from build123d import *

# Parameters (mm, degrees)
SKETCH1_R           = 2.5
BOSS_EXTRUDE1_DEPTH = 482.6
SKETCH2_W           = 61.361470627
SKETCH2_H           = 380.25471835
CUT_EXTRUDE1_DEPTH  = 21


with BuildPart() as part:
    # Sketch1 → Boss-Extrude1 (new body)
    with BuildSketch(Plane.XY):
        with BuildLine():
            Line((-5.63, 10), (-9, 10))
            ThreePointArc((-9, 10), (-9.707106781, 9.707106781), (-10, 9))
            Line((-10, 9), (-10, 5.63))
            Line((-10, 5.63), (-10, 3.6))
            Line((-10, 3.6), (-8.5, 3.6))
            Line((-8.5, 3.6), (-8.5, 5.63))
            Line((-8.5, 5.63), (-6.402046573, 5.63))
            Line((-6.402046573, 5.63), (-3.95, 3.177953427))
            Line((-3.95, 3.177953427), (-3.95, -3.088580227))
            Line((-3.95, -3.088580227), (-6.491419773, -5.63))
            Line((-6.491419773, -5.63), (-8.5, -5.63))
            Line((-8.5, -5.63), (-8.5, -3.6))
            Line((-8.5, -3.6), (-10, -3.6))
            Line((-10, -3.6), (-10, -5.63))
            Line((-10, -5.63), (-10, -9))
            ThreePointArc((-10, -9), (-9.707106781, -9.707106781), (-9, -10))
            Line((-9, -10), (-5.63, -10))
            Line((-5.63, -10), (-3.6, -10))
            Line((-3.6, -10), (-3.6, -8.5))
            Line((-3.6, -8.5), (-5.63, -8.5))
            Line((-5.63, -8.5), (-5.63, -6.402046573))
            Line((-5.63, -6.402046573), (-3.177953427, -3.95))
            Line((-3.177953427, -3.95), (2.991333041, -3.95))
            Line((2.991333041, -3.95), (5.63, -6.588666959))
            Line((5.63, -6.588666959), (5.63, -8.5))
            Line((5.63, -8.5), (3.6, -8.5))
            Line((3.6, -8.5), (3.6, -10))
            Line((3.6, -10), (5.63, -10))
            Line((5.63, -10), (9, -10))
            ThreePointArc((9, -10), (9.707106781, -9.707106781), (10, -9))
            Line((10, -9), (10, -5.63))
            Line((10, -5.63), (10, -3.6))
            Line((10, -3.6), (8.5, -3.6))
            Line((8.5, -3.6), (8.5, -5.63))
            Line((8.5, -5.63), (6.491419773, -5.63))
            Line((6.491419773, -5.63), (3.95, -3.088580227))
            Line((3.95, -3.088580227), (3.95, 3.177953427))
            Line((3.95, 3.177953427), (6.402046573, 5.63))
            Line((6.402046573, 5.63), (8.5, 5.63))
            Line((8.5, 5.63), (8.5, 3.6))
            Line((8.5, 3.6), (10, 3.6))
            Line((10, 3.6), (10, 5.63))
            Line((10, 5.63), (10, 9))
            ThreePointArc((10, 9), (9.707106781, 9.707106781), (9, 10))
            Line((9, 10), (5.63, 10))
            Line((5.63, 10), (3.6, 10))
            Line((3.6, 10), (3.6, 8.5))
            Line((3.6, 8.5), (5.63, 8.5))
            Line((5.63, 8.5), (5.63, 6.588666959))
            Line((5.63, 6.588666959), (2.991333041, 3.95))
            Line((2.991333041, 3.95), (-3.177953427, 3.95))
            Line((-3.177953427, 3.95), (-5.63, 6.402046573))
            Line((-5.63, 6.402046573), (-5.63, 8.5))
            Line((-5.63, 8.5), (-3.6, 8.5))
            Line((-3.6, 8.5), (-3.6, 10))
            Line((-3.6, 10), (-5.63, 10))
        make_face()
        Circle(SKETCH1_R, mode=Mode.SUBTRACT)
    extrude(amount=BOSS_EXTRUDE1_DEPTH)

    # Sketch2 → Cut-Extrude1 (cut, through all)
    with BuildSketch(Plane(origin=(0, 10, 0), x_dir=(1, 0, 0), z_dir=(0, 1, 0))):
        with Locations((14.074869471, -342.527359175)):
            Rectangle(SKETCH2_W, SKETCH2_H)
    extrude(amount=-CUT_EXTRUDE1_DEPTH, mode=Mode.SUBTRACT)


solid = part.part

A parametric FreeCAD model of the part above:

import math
import FreeCAD as App
import Part
import Sketcher
Q = App.Units.Quantity


def add_polygon(sketch, points):
    """Adds a closed chain of lines whose ends are joined by coincident constraints."""
    first, n = sketch.GeometryCount, len(points)
    for a, b in zip(points, points[1:] + points[:1]):
        sketch.addGeometry(Part.LineSegment(App.Vector(*a, 0), App.Vector(*b, 0)), False)
    for i in range(n):
        sketch.addConstraint(Sketcher.Constraint("Coincident", first + i, 2, first + (i + 1) % n, 1))

doc = App.newDocument("Part")
body = doc.addObject("PartDesign::Body", "Body")

sketch1 = doc.addObject("Sketcher::SketchObject", "Sketch")
body.addObject(sketch1)
sketch1.AttachmentSupport = (doc.XY_Plane, [""])
sketch1.MapMode = "FlatFace"
sketch1.addGeometry([
    Part.ArcOfCircle(Part.Circle(App.Vector(-9, 9, 0), App.Vector(0, 0, 1), 1), math.radians(90), math.radians(180)),
    Part.LineSegment(App.Vector(-10, 9, 0), App.Vector(-10, 3.6, 0)),
    Part.LineSegment(App.Vector(-10, 3.6, 0), App.Vector(-8.5, 3.6, 0)),
    Part.LineSegment(App.Vector(-8.5, 3.6, 0), App.Vector(-8.5, 5.6, 0)),
    Part.LineSegment(App.Vector(-8.5, 5.6, 0), App.Vector(-6.4, 5.6, 0)),
    Part.LineSegment(App.Vector(-6.4, 5.6, 0), App.Vector(-4, 3.2, 0)),
    Part.LineSegment(App.Vector(-4, 3.2, 0), App.Vector(-4, -3.1, 0)),
    Part.LineSegment(App.Vector(-4, -3.1, 0), App.Vector(-6.5, -5.6, 0)),
    Part.LineSegment(App.Vector(-6.5, -5.6, 0), App.Vector(-8.5, -5.6, 0)),
    Part.LineSegment(App.Vector(-8.5, -5.6, 0), App.Vector(-8.5, -3.6, 0)),
    Part.LineSegment(App.Vector(-8.5, -3.6, 0), App.Vector(-10, -3.6, 0)),
    Part.LineSegment(App.Vector(-10, -3.6, 0), App.Vector(-10, -9, 0)),
    Part.ArcOfCircle(Part.Circle(App.Vector(-9, -9, 0), App.Vector(0, 0, 1), 1), math.radians(-180), math.radians(-90)),
    Part.LineSegment(App.Vector(-9, -10, 0), App.Vector(-3.6, -10, 0)),
    Part.LineSegment(App.Vector(-3.6, -10, 0), App.Vector(-3.6, -8.5, 0)),
    Part.LineSegment(App.Vector(-3.6, -8.5, 0), App.Vector(-5.6, -8.5, 0)),
    Part.LineSegment(App.Vector(-5.6, -8.5, 0), App.Vector(-5.6, -6.4, 0)),
    Part.LineSegment(App.Vector(-5.6, -6.4, 0), App.Vector(-3.2, -4, 0)),
    Part.LineSegment(App.Vector(-3.2, -4, 0), App.Vector(3, -4, 0)),
    Part.LineSegment(App.Vector(3, -4, 0), App.Vector(5.6, -6.6, 0)),
    Part.LineSegment(App.Vector(5.6, -6.6, 0), App.Vector(5.6, -8.5, 0)),
    Part.LineSegment(App.Vector(5.6, -8.5, 0), App.Vector(3.6, -8.5, 0)),
    Part.LineSegment(App.Vector(3.6, -8.5, 0), App.Vector(3.6, -10, 0)),
    Part.LineSegment(App.Vector(3.6, -10, 0), App.Vector(9, -10, 0)),
    Part.ArcOfCircle(Part.Circle(App.Vector(9, -9, 0), App.Vector(0, 0, 1), 1), math.radians(-90), math.radians(0)),
    Part.LineSegment(App.Vector(10, -9, 0), App.Vector(10, -3.6, 0)),
    Part.LineSegment(App.Vector(10, -3.6, 0), App.Vector(8.5, -3.6, 0)),
    Part.LineSegment(App.Vector(8.5, -3.6, 0), App.Vector(8.5, -5.6, 0)),
    Part.LineSegment(App.Vector(8.5, -5.6, 0), App.Vector(6.5, -5.6, 0)),
    Part.LineSegment(App.Vector(6.5, -5.6, 0), App.Vector(4, -3.1, 0)),
    Part.LineSegment(App.Vector(4, -3.1, 0), App.Vector(4, 3.2, 0)),
    Part.LineSegment(App.Vector(4, 3.2, 0), App.Vector(6.4, 5.6, 0)),
    Part.LineSegment(App.Vector(6.4, 5.6, 0), App.Vector(8.5, 5.6, 0)),
    Part.LineSegment(App.Vector(8.5, 5.6, 0), App.Vector(8.5, 3.6, 0)),
    Part.LineSegment(App.Vector(8.5, 3.6, 0), App.Vector(10, 3.6, 0)),
    Part.LineSegment(App.Vector(10, 3.6, 0), App.Vector(10, 9, 0)),
    Part.ArcOfCircle(Part.Circle(App.Vector(9, 9, 0), App.Vector(0, 0, 1), 1), math.radians(0), math.radians(90)),
    Part.LineSegment(App.Vector(9, 10, 0), App.Vector(3.6, 10, 0)),
    Part.LineSegment(App.Vector(3.6, 10, 0), App.Vector(3.6, 8.5, 0)),
    Part.LineSegment(App.Vector(3.6, 8.5, 0), App.Vector(5.6, 8.5, 0)),
    Part.LineSegment(App.Vector(5.6, 8.5, 0), App.Vector(5.6, 6.6, 0)),
    Part.LineSegment(App.Vector(5.6, 6.6, 0), App.Vector(3, 4, 0)),
    Part.LineSegment(App.Vector(3, 4, 0), App.Vector(-3.2, 4, 0)),
    Part.LineSegment(App.Vector(-3.2, 4, 0), App.Vector(-5.6, 6.4, 0)),
    Part.LineSegment(App.Vector(-5.6, 6.4, 0), App.Vector(-5.6, 8.5, 0)),
    Part.LineSegment(App.Vector(-5.6, 8.5, 0), App.Vector(-3.6, 8.5, 0)),
    Part.LineSegment(App.Vector(-3.6, 8.5, 0), App.Vector(-3.6, 10, 0)),
    Part.LineSegment(App.Vector(-3.6, 10, 0), App.Vector(-9, 10, 0)),
    Part.Circle(App.Vector(0, 0, 0), App.Vector(0, 0, 1), 2.5),
], False)
sketch1.addConstraint([
    Sketcher.Constraint("Tangent", 0, 2, 1, 1),
    Sketcher.Constraint("Coincident", 1, 2, 2, 1),
    Sketcher.Constraint("Coincident", 2, 2, 3, 1),
    Sketcher.Constraint("Coincident", 3, 2, 4, 1),
    Sketcher.Constraint("Coincident", 4, 2, 5, 1),
    Sketcher.Constraint("Coincident", 5, 2, 6, 1),
    Sketcher.Constraint("Coincident", 6, 2, 7, 1),
    Sketcher.Constraint("Coincident", 7, 2, 8, 1),
    Sketcher.Constraint("Coincident", 8, 2, 9, 1),
    Sketcher.Constraint("Coincident", 9, 2, 10, 1),
    Sketcher.Constraint("Coincident", 10, 2, 11, 1),
    Sketcher.Constraint("Tangent", 11, 2, 12, 1),
    Sketcher.Constraint("Tangent", 12, 2, 13, 1),
    Sketcher.Constraint("Coincident", 13, 2, 14, 1),
    Sketcher.Constraint("Coincident", 14, 2, 15, 1),
    Sketcher.Constraint("Coincident", 15, 2, 16, 1),
    Sketcher.Constraint("Coincident", 16, 2, 17, 1),
    Sketcher.Constraint("Coincident", 17, 2, 18, 1),
    Sketcher.Constraint("Coincident", 18, 2, 19, 1),
    Sketcher.Constraint("Coincident", 19, 2, 20, 1),
    Sketcher.Constraint("Coincident", 20, 2, 21, 1),
    Sketcher.Constraint("Coincident", 21, 2, 22, 1),
    Sketcher.Constraint("Coincident", 22, 2, 23, 1),
    Sketcher.Constraint("Tangent", 23, 2, 24, 1),
    Sketcher.Constraint("Tangent", 24, 2, 25, 1),
    Sketcher.Constraint("Coincident", 25, 2, 26, 1),
    Sketcher.Constraint("Coincident", 26, 2, 27, 1),
    Sketcher.Constraint("Coincident", 27, 2, 28, 1),
    Sketcher.Constraint("Coincident", 28, 2, 29, 1),
    Sketcher.Constraint("Coincident", 29, 2, 30, 1),
    Sketcher.Constraint("Coincident", 30, 2, 31, 1),
    Sketcher.Constraint("Coincident", 31, 2, 32, 1),
    Sketcher.Constraint("Coincident", 32, 2, 33, 1),
    Sketcher.Constraint("Coincident", 33, 2, 34, 1),
    Sketcher.Constraint("Coincident", 34, 2, 35, 1),
    Sketcher.Constraint("Tangent", 35, 2, 36, 1),
    Sketcher.Constraint("Tangent", 36, 2, 37, 1),
    Sketcher.Constraint("Coincident", 37, 2, 38, 1),
    Sketcher.Constraint("Coincident", 38, 2, 39, 1),
    Sketcher.Constraint("Coincident", 39, 2, 40, 1),
    Sketcher.Constraint("Coincident", 40, 2, 41, 1),
    Sketcher.Constraint("Coincident", 41, 2, 42, 1),
    Sketcher.Constraint("Coincident", 42, 2, 43, 1),
    Sketcher.Constraint("Coincident", 43, 2, 44, 1),
    Sketcher.Constraint("Coincident", 44, 2, 45, 1),
    Sketcher.Constraint("Coincident", 45, 2, 46, 1),
    Sketcher.Constraint("Coincident", 46, 2, 47, 1),
    Sketcher.Constraint("Tangent", 47, 2, 0, 1),
    Sketcher.Constraint("Vertical", 1),
    Sketcher.Constraint("Horizontal", 2),
    Sketcher.Constraint("Vertical", 3),
    Sketcher.Constraint("Horizontal", 4),
    Sketcher.Constraint("Vertical", 6),
    Sketcher.Constraint("Horizontal", 8),
    Sketcher.Constraint("Vertical", 9),
    Sketcher.Constraint("Horizontal", 10),
    Sketcher.Constraint("Vertical", 11),
    Sketcher.Constraint("Horizontal", 13),
    Sketcher.Constraint("Vertical", 14),
    Sketcher.Constraint("Horizontal", 15),
    Sketcher.Constraint("Vertical", 16),
    Sketcher.Constraint("Horizontal", 18),
    Sketcher.Constraint("Vertical", 20),
    Sketcher.Constraint("Horizontal", 21),
    Sketcher.Constraint("Vertical", 22),
    Sketcher.Constraint("Horizontal", 23),
    Sketcher.Constraint("Vertical", 25),
    Sketcher.Constraint("Horizontal", 26),
    Sketcher.Constraint("Vertical", 27),
    Sketcher.Constraint("Horizontal", 28),
    Sketcher.Constraint("Vertical", 30),
    Sketcher.Constraint("Horizontal", 32),
    Sketcher.Constraint("Vertical", 33),
    Sketcher.Constraint("Horizontal", 34),
    Sketcher.Constraint("Vertical", 35),
    Sketcher.Constraint("Horizontal", 37),
    Sketcher.Constraint("Vertical", 38),
    Sketcher.Constraint("Horizontal", 39),
    Sketcher.Constraint("Vertical", 40),
    Sketcher.Constraint("Horizontal", 42),
    Sketcher.Constraint("Vertical", 44),
    Sketcher.Constraint("Horizontal", 45),
    Sketcher.Constraint("Vertical", 46),
    Sketcher.Constraint("Horizontal", 47),
    Sketcher.Constraint("Coincident", 48, 3, -1, 1),
    Sketcher.Constraint("Equal", 0, 12),
    Sketcher.Constraint("Equal", 12, 24),
    Sketcher.Constraint("Equal", 24, 36),
    Sketcher.Constraint("Symmetric", 0, 3, 24, 3, -1, 1),
    Sketcher.Constraint("Symmetric", 12, 3, 36, 3, -1, 1),
    Sketcher.Constraint("Symmetric", 2, 2, 26, 2, -1, 1),
    Sketcher.Constraint("Symmetric", 8, 2, 32, 2, -1, 1),
    Sketcher.Constraint("Symmetric", 14, 2, 38, 2, -1, 1),
    Sketcher.Constraint("Symmetric", 20, 2, 44, 2, -1, 1),
    Sketcher.Constraint("Symmetric", 12, 3, 24, 3, -2),
    Sketcher.Constraint("Symmetric", 15, 2, 20, 2, -2),
    Sketcher.Constraint("Symmetric", 9, 2, 26, 2, -2),
    Sketcher.Constraint("Symmetric", 7, 2, 28, 2, -2),
    Sketcher.Constraint("Symmetric", 6, 2, 29, 2, -2),
    Sketcher.Constraint("Symmetric", 4, 2, 31, 2, -2),
    Sketcher.Constraint("Symmetric", 19, 2, 40, 2, -1),
    Sketcher.Constraint("Symmetric", 18, 2, 41, 2, -1),
    Sketcher.Constraint("Perpendicular", 5, 7),
    Sketcher.Constraint("Parallel", 7, 17),
    Sketcher.Constraint("Perpendicular", 17, 19),
    Sketcher.Constraint("Parallel", 19, 29),
    Sketcher.Constraint("Perpendicular", 29, 31),
    Sketcher.Constraint("Perpendicular", 41, 43),
    Sketcher.Constraint("Horizontal", 2, 2, 33, 2),
    Sketcher.Constraint("Vertical", 22, 2, 37, 2),
    Sketcher.Constraint("Vertical", 17, 2, 42, 2),
    Sketcher.Constraint("Vertical", 14, 2, 45, 2),
    Sketcher.Constraint("Equal", 47, 1),
    Sketcher.Constraint("Equal", 45, 3),
    Sketcher.Constraint("Equal", 34, 14),
    Sketcher.Constraint("Equal", 32, 16),
    Sketcher.Constraint("Equal", 5, 17),
    Sketcher.Constraint("Diameter", 48, Q("5 mm")),
    Sketcher.Constraint("Radius", 0, Q("1 mm")),
    Sketcher.Constraint("DistanceX", 2, 1, 2, 2, Q("1.5 mm")),
    Sketcher.Constraint("DistanceX", 13, 1, 13, 2, Q("5.4 mm")),
    Sketcher.Constraint("DistanceX", 0, 3, -1, 1, Q("9 mm")),
    Sketcher.Constraint("DistanceY", -1, 1, 0, 3, Q("9 mm")),
    Sketcher.Constraint("DistanceX", 15, 2, 15, 1, Q("2.03 mm")),
    Sketcher.Constraint("DistanceX", 5, 2, 30, 2, Q("7.9 mm")),
    Sketcher.Constraint("DistanceX", 8, 2, 8, 1, Q("2.00858 mm")),
    Sketcher.Constraint("Distance", 19, Q("3.731639 mm")),
    Sketcher.Constraint("DistanceX", 4, 1, 4, 2, Q("2.097953 mm")),
])
pad1 = doc.addObject("PartDesign::Pad", "Pad")
body.addObject(pad1)
pad1.Profile = sketch1
pad1.Length = 482.6

sketch2 = doc.addObject("Sketcher::SketchObject", "Sketch001")
body.addObject(sketch2)
sketch2.AttachmentSupport = (doc.XZ_Plane, [""])
sketch2.MapMode = "FlatFace"
sketch2.AttachmentOffset = App.Placement(App.Vector(0, 0, -10), App.Rotation())
add_polygon(sketch2, [(-17, 152), (-17, 533), (45, 533), (45, 152)])
sketch2.addConstraint([
    Sketcher.Constraint("Vertical", 0),
    Sketcher.Constraint("Horizontal", 1),
    Sketcher.Constraint("Vertical", 2),
    Sketcher.Constraint("Horizontal", 3),
    Sketcher.Constraint("DistanceY", -1, 1, 2, 2, Q("152.4 mm")),
    Sketcher.Constraint("DistanceX", 1, 1, 1, 2, Q("61.361471 mm")),
    Sketcher.Constraint("DistanceY", 0, 1, 0, 2, Q("380.254718 mm")),
    Sketcher.Constraint("DistanceX", 0, 2, -1, 1, Q("16.605866 mm")),
])
pocket1 = doc.addObject("PartDesign::Pocket", "Pocket")
body.addObject(pocket1)
pocket1.Profile = sketch2
pocket1.Type = "ThroughAll"
pocket1.Reversed = True

doc.recompute()
